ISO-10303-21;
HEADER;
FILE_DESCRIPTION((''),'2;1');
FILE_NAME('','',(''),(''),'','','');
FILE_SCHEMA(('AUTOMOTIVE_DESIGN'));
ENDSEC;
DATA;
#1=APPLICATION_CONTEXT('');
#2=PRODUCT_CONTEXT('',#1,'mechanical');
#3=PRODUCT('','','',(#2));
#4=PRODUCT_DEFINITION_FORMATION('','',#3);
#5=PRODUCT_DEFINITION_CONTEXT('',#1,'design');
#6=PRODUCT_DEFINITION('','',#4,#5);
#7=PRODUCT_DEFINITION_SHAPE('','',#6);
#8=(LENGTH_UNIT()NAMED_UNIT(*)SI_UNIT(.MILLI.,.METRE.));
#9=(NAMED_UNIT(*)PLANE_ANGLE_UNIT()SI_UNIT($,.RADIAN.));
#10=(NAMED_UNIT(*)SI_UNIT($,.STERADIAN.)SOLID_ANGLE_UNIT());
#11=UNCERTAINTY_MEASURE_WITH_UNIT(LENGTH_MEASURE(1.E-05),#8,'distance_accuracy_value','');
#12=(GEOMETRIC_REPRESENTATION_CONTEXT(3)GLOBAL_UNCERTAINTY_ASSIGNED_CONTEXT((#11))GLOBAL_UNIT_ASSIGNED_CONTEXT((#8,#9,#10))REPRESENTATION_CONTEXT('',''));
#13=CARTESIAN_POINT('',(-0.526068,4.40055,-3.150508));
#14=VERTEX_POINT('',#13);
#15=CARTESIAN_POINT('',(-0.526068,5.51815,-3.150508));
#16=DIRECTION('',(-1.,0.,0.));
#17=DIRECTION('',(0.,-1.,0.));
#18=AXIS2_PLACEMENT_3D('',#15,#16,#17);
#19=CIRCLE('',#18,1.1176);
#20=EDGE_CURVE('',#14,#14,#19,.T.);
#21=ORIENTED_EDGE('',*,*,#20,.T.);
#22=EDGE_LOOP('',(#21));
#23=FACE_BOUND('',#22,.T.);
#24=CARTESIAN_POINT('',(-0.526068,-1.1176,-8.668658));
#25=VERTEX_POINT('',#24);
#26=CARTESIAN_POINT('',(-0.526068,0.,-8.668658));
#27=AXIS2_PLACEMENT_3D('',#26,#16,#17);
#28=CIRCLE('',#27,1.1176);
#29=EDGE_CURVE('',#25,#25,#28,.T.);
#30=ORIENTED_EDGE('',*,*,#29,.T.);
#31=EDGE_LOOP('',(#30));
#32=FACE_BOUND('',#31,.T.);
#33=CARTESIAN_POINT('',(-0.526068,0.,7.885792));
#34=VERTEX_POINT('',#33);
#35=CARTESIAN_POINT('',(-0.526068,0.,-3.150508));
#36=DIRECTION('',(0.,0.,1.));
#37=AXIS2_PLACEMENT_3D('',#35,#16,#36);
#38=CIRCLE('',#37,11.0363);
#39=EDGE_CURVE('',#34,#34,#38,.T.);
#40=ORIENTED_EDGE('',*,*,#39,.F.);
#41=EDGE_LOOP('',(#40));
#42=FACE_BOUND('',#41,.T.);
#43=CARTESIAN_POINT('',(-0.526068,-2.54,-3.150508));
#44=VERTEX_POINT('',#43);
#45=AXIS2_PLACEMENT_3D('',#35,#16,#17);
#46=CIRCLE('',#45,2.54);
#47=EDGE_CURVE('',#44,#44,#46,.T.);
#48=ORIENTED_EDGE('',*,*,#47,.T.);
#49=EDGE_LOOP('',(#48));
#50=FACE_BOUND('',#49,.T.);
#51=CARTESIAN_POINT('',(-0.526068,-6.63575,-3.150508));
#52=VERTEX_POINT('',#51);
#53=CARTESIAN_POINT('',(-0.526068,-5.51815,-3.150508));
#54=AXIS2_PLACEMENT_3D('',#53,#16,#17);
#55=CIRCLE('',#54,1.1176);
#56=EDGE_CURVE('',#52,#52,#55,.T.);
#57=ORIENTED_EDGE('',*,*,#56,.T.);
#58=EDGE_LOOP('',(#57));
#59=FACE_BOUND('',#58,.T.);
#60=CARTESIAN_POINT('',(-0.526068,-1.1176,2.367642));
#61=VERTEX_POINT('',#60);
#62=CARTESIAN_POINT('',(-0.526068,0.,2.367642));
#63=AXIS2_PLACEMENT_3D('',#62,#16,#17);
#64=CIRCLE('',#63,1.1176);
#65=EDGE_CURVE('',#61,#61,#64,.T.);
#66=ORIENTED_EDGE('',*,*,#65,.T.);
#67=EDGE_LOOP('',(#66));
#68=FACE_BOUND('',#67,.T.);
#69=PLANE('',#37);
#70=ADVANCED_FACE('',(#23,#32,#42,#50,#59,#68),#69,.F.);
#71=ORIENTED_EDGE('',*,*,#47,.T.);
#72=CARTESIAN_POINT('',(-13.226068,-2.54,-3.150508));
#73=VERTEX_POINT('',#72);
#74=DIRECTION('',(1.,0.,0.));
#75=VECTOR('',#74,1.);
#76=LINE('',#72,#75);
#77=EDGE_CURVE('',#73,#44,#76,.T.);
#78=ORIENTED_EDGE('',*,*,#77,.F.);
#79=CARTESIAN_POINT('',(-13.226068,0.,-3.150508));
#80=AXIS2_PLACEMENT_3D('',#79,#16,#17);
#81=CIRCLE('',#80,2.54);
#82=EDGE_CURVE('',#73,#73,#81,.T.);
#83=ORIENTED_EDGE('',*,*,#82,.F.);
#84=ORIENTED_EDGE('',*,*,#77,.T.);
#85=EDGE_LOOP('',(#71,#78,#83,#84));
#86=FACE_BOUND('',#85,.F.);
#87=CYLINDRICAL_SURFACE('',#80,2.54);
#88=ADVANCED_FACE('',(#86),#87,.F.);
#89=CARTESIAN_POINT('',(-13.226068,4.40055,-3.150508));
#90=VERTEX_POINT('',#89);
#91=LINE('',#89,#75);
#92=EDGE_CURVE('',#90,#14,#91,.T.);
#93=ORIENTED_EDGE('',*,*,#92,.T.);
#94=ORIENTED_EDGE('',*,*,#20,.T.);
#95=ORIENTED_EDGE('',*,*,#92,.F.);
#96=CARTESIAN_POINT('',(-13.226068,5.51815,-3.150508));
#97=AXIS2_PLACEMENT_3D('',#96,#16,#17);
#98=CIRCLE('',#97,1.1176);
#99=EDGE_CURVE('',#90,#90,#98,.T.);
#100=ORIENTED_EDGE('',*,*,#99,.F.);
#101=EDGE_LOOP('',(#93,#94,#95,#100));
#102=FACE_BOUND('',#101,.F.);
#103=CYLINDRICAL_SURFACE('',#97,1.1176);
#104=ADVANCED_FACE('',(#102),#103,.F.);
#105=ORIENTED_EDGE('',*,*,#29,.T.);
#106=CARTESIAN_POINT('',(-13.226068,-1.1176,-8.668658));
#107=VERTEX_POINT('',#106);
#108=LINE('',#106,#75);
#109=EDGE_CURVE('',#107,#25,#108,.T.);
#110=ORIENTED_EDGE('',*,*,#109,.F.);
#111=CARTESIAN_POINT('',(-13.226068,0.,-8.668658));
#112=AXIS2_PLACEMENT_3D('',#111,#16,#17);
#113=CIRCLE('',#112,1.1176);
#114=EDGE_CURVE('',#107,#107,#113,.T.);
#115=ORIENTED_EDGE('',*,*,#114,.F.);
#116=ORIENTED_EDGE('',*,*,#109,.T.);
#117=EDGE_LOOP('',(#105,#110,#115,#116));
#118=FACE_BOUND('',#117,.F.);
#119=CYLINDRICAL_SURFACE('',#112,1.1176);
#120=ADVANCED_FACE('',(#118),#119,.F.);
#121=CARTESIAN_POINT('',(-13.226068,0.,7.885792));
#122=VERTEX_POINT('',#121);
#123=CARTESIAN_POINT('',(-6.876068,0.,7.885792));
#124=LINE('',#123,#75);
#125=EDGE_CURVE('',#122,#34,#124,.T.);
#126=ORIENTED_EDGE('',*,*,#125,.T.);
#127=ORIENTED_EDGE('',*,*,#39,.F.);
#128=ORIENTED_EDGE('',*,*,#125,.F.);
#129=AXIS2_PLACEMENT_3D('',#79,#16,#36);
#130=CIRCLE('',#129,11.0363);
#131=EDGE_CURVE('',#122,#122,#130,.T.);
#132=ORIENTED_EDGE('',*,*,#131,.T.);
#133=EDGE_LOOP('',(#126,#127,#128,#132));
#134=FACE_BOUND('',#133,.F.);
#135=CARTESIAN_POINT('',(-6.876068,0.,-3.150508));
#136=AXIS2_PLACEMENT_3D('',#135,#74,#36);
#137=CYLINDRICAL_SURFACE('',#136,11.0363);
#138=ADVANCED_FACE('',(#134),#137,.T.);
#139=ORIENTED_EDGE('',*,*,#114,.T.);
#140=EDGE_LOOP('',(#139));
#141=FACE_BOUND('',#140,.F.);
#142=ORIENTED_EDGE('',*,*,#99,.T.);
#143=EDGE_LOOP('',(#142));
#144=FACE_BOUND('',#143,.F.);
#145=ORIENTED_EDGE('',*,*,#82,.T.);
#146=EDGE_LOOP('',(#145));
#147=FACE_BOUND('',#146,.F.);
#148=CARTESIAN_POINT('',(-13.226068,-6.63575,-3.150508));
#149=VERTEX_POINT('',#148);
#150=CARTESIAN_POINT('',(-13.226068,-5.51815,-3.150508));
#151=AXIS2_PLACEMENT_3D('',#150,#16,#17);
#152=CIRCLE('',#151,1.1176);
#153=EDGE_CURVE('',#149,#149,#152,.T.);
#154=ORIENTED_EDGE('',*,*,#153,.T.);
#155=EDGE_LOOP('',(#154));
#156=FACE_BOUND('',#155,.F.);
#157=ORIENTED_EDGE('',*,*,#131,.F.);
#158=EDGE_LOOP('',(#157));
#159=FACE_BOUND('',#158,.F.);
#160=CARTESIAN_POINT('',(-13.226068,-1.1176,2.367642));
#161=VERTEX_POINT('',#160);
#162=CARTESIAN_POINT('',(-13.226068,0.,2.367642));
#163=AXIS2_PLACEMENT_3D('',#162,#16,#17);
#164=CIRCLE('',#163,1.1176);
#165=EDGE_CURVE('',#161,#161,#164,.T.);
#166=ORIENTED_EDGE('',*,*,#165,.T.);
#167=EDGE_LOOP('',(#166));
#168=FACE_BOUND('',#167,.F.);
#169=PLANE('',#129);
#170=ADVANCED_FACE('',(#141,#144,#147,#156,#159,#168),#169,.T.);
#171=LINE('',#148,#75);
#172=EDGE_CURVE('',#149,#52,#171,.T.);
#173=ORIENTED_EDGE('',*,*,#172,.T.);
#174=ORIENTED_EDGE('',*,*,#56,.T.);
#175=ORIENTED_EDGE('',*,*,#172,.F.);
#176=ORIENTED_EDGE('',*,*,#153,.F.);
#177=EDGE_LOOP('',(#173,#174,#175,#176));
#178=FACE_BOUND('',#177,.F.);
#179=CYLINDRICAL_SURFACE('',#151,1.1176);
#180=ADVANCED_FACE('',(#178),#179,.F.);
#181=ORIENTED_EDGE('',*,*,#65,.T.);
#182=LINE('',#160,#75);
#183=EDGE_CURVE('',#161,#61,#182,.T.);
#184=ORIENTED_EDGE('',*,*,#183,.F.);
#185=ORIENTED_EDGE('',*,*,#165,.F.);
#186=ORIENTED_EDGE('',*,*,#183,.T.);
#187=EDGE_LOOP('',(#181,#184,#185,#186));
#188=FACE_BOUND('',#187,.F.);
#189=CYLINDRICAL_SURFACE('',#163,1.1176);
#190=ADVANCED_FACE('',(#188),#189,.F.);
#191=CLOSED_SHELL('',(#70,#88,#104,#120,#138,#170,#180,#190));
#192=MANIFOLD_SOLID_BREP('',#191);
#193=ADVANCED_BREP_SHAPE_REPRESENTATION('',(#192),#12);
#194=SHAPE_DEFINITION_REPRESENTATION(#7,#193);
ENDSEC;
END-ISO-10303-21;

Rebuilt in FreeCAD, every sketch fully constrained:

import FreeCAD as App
import Part
import Sketcher

V = App.Vector
Q = App.Units.Quantity

doc = App.newDocument("Part")
body = doc.addObject("PartDesign::Body", "Body")

sketch1 = body.newObject("Sketcher::SketchObject", "Sketch")
sketch1.AttachmentSupport = (doc.getObject("XZ_Plane"), [""])
sketch1.MapMode = "FlatFace"
sketch1.addGeometry(Part.LineSegment(V(-13, 8, 0), V(-13, -3, 0)), False)
sketch1.addGeometry(Part.LineSegment(V(-13, -3, 0), V(-1, -3, 0)), False)
sketch1.addGeometry(Part.LineSegment(V(-1, -3, 0), V(-1, 8, 0)), False)
sketch1.addGeometry(Part.LineSegment(V(-1, 8, 0), V(-13, 8, 0)), False)
sketch1.addGeometry(Part.LineSegment(V(-1, -3, 0), V(-13, -3, 0)), True)
sketch1.addConstraint(Sketcher.Constraint("Coincident", 0, 2, 1, 1))
sketch1.addConstraint(Sketcher.Constraint("Coincident", 1, 2, 2, 1))
sketch1.addConstraint(Sketcher.Constraint("Coincident", 2, 2, 3, 1))
sketch1.addConstraint(Sketcher.Constraint("Coincident", 3, 2, 0, 1))
sketch1.addConstraint(Sketcher.Constraint("Vertical", 0))
sketch1.addConstraint(Sketcher.Constraint("Horizontal", 1))
sketch1.addConstraint(Sketcher.Constraint("Vertical", 2))
sketch1.addConstraint(Sketcher.Constraint("Horizontal", 3))
sketch1.addConstraint(Sketcher.Constraint("Horizontal", 4))
sketch1.addConstraint(Sketcher.Constraint("Coincident", 4, 1, 1, 2))
sketch1.addConstraint(Sketcher.Constraint("Vertical", 3, 2, 4, 2))
sketch1.addConstraint(Sketcher.Constraint("DistanceX", 1, 1, 1, 2, Q("0.5 in")))
sketch1.addConstraint(Sketcher.Constraint("DistanceY", 0, 2, 0, 1, Q("0.4345 in")))
sketch1.addConstraint(Sketcher.Constraint("DistanceX", 0, 2, -1, 1, Q("13.226068 mm")))
sketch1.addConstraint(Sketcher.Constraint("DistanceY", 0, 2, -1, 1, Q("3.150508 mm")))
revolution = body.newObject("PartDesign::Revolution", "Revolution")
revolution.Profile = sketch1
revolution.ReferenceAxis = (sketch1, ["Axis0"])
revolution.Angle = 360

sketch2 = body.newObject("Sketcher::SketchObject", "Sketch001")
sketch2.AttachmentSupport = (doc.getObject("YZ_Plane"), [""])
sketch2.MapMode = "FlatFace"
sketch2.AttachmentOffset = App.Placement(V(0, 0, -13.226068), App.Rotation())
sketch2.addGeometry(Part.Circle(V(0, -3.2, 0), V(0, 0, 1), 2.5), False)
sketch2.addGeometry(Part.Circle(V(5.5, -3.2, 0), V(0, 0, 1), 1.1), False)
sketch2.addGeometry(Part.Circle(V(0, 2.4, 0), V(0, 0, 1), 1.1), False)
sketch2.addGeometry(Part.Circle(V(-5.5, -3.2, 0), V(0, 0, 1), 1.1), False)
sketch2.addGeometry(Part.Circle(V(0, -8.7, 0), V(0, 0, 1), 1.1), False)
sketch2.addConstraint(Sketcher.Constraint("Equal", 1, 2))
sketch2.addConstraint(Sketcher.Constraint("Equal", 2, 3))
sketch2.addConstraint(Sketcher.Constraint("Equal", 3, 4))
sketch2.addConstraint(Sketcher.Constraint("Symmetric", 1, 3, 3, 3, -2))
sketch2.addConstraint(Sketcher.Constraint("PointOnObject", 0, 3, -2))
sketch2.addConstraint(Sketcher.Constraint("PointOnObject", 2, 3, -2))
sketch2.addConstraint(Sketcher.Constraint("PointOnObject", 4, 3, -2))
sketch2.addConstraint(Sketcher.Constraint("Horizontal", 0, 3, 1, 3))
sketch2.addConstraint(Sketcher.Constraint("Diameter", 0, Q("0.2 in")))
sketch2.addConstraint(Sketcher.Constraint("Diameter", 1, Q("0.088 in")))
sketch2.addConstraint(Sketcher.Constraint("DistanceX", 3, 3, 1, 3, Q("0.4345 in")))
sketch2.addConstraint(Sketcher.Constraint("DistanceY", 4, 3, 2, 3, Q("0.4345 in")))
sketch2.addConstraint(Sketcher.Constraint("DistanceY", -1, 1, 2, 3, Q("2.367642 mm")))
sketch2.addConstraint(Sketcher.Constraint("DistanceY", 0, 3, 2, 3, Q("5.51815 mm")))
pocket1 = body.newObject("PartDesign::Pocket", "Pocket")
pocket1.Profile = sketch2
pocket1.Length = 30.43168
pocket1.Reversed = True

doc.recompute()
